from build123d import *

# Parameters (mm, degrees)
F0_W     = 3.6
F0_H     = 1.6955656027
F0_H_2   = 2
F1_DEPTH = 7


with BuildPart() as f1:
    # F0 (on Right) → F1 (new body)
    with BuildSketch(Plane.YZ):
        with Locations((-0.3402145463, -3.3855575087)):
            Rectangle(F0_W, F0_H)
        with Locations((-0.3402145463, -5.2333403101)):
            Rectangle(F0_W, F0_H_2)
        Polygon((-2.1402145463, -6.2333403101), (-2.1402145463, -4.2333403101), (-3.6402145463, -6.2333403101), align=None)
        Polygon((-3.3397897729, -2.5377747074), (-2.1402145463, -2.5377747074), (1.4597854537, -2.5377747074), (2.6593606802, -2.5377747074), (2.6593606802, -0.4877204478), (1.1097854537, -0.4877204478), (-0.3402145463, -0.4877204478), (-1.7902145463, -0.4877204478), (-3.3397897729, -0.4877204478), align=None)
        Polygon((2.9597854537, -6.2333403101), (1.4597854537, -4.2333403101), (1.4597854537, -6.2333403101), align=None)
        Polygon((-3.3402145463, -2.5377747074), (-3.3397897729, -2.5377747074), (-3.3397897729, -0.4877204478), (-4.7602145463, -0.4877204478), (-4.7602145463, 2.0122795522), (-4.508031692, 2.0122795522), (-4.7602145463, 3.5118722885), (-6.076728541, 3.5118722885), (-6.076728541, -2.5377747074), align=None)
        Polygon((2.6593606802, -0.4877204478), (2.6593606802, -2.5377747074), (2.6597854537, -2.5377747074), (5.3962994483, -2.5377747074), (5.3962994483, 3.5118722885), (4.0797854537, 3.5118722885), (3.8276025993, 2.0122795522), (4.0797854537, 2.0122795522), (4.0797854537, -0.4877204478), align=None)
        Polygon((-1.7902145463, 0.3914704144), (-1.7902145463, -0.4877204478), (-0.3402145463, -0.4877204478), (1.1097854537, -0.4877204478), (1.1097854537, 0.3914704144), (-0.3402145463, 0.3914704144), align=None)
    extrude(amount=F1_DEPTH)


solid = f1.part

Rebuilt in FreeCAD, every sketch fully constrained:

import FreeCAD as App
import Part
import Sketcher

V = App.Vector


def add_polygon(sketch, points):
    """Adds a closed chain of lines whose ends are joined by coincident constraints."""
    first, n = sketch.GeometryCount, len(points)
    for a, b in zip(points, points[1:] + points[:1]):
        sketch.addGeometry(Part.LineSegment(App.Vector(*a, 0), App.Vector(*b, 0)), False)
    for i in range(n):
        sketch.addConstraint(Sketcher.Constraint("Coincident", first + i, 2, first + (i + 1) % n, 1))

doc = App.newDocument("Part")
params = doc.addObject("Spreadsheet::Sheet", "Params")
for row, (alias, value) in enumerate([
    ("sketch1_width", "6.6 mm"),
    ("sketch1_width2", "2.9 mm"),
    ("sketch1_height", "2.5 mm"),
    ("sketch1_length", "2.5 mm"),
    ("sketch1_width3", "2.97 mm"),
    ("pad1_length", "7 mm"),
], start=1):
    params.set(f"A{row}", alias)
    params.set(f"B{row}", "=" + value)
    params.setAlias(f"B{row}", alias)

body = doc.addObject("PartDesign::Body", "Body")

# Sketch on YZ plane
sketch1 = body.newObject("Sketcher::SketchObject", "Sketch")
sketch1.AttachmentSupport = (doc.getObject("YZ_Plane"), [""])
sketch1.MapMode = "FlatFace"
add_polygon(sketch1, [(-2.14, -2.54), (-2.14, -4.23), (-3.64, -6.23), (2.96, -6.23), (1.46, -4.23), (1.46, -2.54), (5.4, -2.54), (5.4, 3.51), (4.08, 3.51), (3.83, 2.01), (4.08, 2.01), (4.08, -0.49), (1.11, -0.49), (1.11, 0.39), (-1.79, 0.39), (-1.79, -0.49), (-4.76, -0.49), (-4.76, 2.01), (-4.51, 2.01), (-4.76, 3.51), (-6.08, 3.51), (-6.08, -2.54)])  # lines 0-21
sketch1.addConstraint([
    Sketcher.Constraint("Vertical", 0),
    Sketcher.Constraint("Horizontal", 2),
    Sketcher.Constraint("Vertical", 4),
    Sketcher.Constraint("Horizontal", 5),
    Sketcher.Constraint("Vertical", 6),
    Sketcher.Constraint("Horizontal", 7),
    Sketcher.Constraint("Horizontal", 9),
    Sketcher.Constraint("Vertical", 10),
    Sketcher.Constraint("Horizontal", 11),
    Sketcher.Constraint("Vertical", 12),
    Sketcher.Constraint("Horizontal", 13),
    Sketcher.Constraint("Vertical", 14),
    Sketcher.Constraint("Horizontal", 15),
    Sketcher.Constraint("Vertical", 16),
    Sketcher.Constraint("Horizontal", 17),
    Sketcher.Constraint("Horizontal", 19),
    Sketcher.Constraint("Vertical", 20),
    Sketcher.Constraint("Horizontal", 21),
    Sketcher.Constraint("Horizontal", 0, 2, 3, 2),
    Sketcher.Constraint("Horizontal", 11, 2, 14, 2),
    Sketcher.Constraint("Horizontal", 9, 2, 16, 2),
    Sketcher.Constraint("Horizontal", 7, 2, 18, 2),
    Sketcher.Constraint("Horizontal", 5, 2, 20, 2),
    Sketcher.Constraint("Vertical", 7, 2, 9, 2),
    Sketcher.Constraint("Vertical", 16, 2, 18, 2),
    Sketcher.Constraint("Equal", 11, 15),
    Sketcher.Constraint("Equal", 9, 17),
    Sketcher.Constraint("Equal", 7, 19),
    Sketcher.Constraint("Equal", 5, 21),
    Sketcher.Constraint("Equal", 1, 3),
    Sketcher.Constraint("DistanceX", 2, 1, 2, 2, 6.6),
    Sketcher.Constraint("DistanceX", 13, 2, 13, 1, 2.9),
    Sketcher.Constraint("DistanceY", 10, 2, 10, 1, 2.5),
    Sketcher.Constraint("DistanceY", 1, 2, 0, 2, 2.0),
    Sketcher.Constraint("Distance", 1, 2.5),
    Sketcher.Constraint("DistanceX", 11, 2, 11, 1, 2.97),
    Sketcher.Constraint("DistanceY", 12, 1, 12, 2, 0.879191),
    Sketcher.Constraint("DistanceX", -1, 1, 5, 2, 5.396299),
    Sketcher.Constraint("DistanceY", 13, 2, 18, 2, 3.120402),
    Sketcher.Constraint("Distance", 8, 1.520649),
    Sketcher.Constraint("DistanceX", 5, 1, 5, 2, 3.936514),
    Sketcher.Constraint("DistanceY", 0, 2, 0, 1, 1.695566),
    Sketcher.Constraint("DistanceY", 6, 1, 6, 2, 6.049647),
    Sketcher.Constraint("DistanceY", 0, 2, -1, 1, 4.23334),
])
sketch1.setExpression("Constraints[52]", "Params.sketch1_width")
sketch1.setExpression("Constraints[53]", "Params.sketch1_width2")
sketch1.setExpression("Constraints[54]", "Params.sketch1_height")
sketch1.setExpression("Constraints[56]", "Params.sketch1_length")
sketch1.setExpression("Constraints[57]", "Params.sketch1_width3")
pad1 = body.newObject("PartDesign::Pad", "Pad")
pad1.Profile = sketch1
pad1.setExpression("Length", "Params.pad1_length")

doc.recompute()
